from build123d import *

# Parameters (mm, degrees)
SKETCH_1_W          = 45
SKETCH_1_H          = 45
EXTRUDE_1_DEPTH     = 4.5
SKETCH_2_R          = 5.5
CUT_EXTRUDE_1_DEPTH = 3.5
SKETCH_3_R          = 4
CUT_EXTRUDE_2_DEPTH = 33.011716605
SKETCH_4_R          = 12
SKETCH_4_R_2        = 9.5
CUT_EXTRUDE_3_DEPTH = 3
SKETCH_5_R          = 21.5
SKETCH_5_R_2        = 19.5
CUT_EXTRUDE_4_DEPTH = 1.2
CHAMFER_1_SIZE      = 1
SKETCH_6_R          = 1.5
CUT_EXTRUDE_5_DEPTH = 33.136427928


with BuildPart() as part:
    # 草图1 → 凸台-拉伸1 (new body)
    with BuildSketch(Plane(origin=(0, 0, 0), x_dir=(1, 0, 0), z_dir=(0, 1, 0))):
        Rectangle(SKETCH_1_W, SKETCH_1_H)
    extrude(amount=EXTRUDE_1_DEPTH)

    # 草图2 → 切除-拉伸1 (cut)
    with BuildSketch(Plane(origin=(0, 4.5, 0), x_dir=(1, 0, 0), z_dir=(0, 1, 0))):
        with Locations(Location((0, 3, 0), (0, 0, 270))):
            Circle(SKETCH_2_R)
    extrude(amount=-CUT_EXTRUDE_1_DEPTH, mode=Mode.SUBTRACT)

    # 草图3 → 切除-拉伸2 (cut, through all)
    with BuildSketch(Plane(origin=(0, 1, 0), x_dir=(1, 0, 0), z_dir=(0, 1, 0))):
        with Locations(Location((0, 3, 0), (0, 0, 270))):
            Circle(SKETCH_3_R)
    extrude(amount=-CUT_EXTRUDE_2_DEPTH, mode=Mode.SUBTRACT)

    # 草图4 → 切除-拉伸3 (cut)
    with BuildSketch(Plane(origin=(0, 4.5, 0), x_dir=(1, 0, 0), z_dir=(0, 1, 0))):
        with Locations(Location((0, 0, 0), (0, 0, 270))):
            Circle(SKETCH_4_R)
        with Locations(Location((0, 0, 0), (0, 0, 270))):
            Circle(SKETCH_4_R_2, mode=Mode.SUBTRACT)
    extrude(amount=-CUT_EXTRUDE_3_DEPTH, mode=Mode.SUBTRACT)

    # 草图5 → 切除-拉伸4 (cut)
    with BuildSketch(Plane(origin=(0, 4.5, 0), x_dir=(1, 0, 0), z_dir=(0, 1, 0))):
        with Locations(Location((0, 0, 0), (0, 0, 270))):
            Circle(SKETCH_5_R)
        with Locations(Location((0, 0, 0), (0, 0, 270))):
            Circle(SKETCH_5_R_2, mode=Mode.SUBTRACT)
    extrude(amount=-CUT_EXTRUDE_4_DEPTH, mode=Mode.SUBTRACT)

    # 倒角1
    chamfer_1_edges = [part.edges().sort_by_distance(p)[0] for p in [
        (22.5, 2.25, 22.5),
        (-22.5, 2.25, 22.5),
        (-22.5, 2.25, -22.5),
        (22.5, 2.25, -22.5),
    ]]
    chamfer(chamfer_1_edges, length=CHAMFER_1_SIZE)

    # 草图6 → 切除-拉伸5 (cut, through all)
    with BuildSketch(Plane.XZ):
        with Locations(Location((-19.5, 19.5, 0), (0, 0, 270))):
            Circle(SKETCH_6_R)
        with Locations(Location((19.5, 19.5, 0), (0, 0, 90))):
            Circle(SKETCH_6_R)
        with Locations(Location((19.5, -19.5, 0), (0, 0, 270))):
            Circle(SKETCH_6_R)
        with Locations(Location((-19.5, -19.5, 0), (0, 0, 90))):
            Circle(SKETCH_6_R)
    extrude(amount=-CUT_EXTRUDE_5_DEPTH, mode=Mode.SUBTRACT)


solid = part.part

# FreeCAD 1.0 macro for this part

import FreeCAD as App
import Part
import Sketcher
from FreeCAD import Vector
Q = App.Units.Quantity


def edges_at(feature, points):
    """Names of the edges that pass closest to the given points."""
    edges = feature.Shape.Edges
    near = lambda p: min(range(len(edges)), key=lambda i: edges[i].distToShape(Part.Vertex(*p))[0])
    return sorted({f"Edge{near(p) + 1}" for p in points})


def add_polygon(sketch, points):
    """Adds a closed chain of lines whose ends are joined by coincident constraints."""
    first, n = sketch.GeometryCount, len(points)
    for a, b in zip(points, points[1:] + points[:1]):
        sketch.addGeometry(Part.LineSegment(App.Vector(*a, 0), App.Vector(*b, 0)), False)
    for i in range(n):
        sketch.addConstraint(Sketcher.Constraint("Coincident", first + i, 2, first + (i + 1) % n, 1))

doc = App.newDocument("Part")
body = doc.addObject("PartDesign::Body", "Body")

# Sketch on XZ plane
sketch1 = body.newObject("Sketcher::SketchObject", "Sketch")
sketch1.AttachmentSupport = (doc.getObject("XZ_Plane"), [""])
sketch1.MapMode = "FlatFace"
add_polygon(sketch1, [(-22.5, -22.5), (-22.5, 22.5), (22.5, 22.5), (22.5, -22.5)])  # lines 0-3
sketch1.addConstraint([
    Sketcher.Constraint("Vertical", 0),
    Sketcher.Constraint("Horizontal", 1),
    Sketcher.Constraint("Vertical", 2),
    Sketcher.Constraint("Horizontal", 3),
    Sketcher.Constraint("Symmetric", 0, 2, 2, 2, -1, 1),
    Sketcher.Constraint("Equal", 3, 0),
    Sketcher.Constraint("DistanceX", 1, 1, 1, 2, Q("45 mm")),
])
pad1 = body.newObject("PartDesign::Pad", "Pad")
pad1.Profile = sketch1
pad1.Length = 4.5
pad1.Reversed = True

# Sketch on XZ plane
sketch2 = body.newObject("Sketcher::SketchObject", "Sketch001")
sketch2.AttachmentSupport = (doc.getObject("XZ_Plane"), [""])
sketch2.MapMode = "FlatFace"
sketch2.AttachmentOffset = App.Placement(Vector(0, 0, -4.5), App.Rotation())
sketch2.addGeometry(Part.Circle(Vector(0, -3, 0), Vector(0, 0, 1), 5.5), False)
sketch2.addConstraint([
    Sketcher.Constraint("PointOnObject", 0, 3, -2),
    Sketcher.Constraint("Diameter", 0, Q("11 mm")),
    Sketcher.Constraint("DistanceY", 0, 3, -1, 1, Q("3 mm")),
])
pocket1 = body.newObject("PartDesign::Pocket", "Pocket")
pocket1.Profile = sketch2
pocket1.Length = 3.5
pocket1.Reversed = True

# Sketch on XZ plane
sketch3 = body.newObject("Sketcher::SketchObject", "Sketch002")
sketch3.AttachmentSupport = (doc.getObject("XZ_Plane"), [""])
sketch3.MapMode = "FlatFace"
sketch3.AttachmentOffset = App.Placement(Vector(0, 0, -1), App.Rotation())
sketch3.addGeometry(Part.Circle(Vector(0, -3, 0), Vector(0, 0, 1), 4), False)
sketch3.addConstraint([
    Sketcher.Constraint("PointOnObject", 0, 3, -2),
    Sketcher.Constraint("Diameter", 0, Q("8 mm")),
    Sketcher.Constraint("DistanceY", 0, 3, -1, 1, Q("3 mm")),
])
pocket2 = body.newObject("PartDesign::Pocket", "Pocket001")
pocket2.Profile = sketch3
pocket2.Type = "ThroughAll"
pocket2.Reversed = True

# Sketch on XZ plane
sketch4 = body.newObject("Sketcher::SketchObject", "Sketch003")
sketch4.AttachmentSupport = (doc.getObject("XZ_Plane"), [""])
sketch4.MapMode = "FlatFace"
sketch4.AttachmentOffset = App.Placement(Vector(0, 0, -4.5), App.Rotation())
sketch4.addGeometry([
    Part.Circle(Vector(0, 0, 0), Vector(0, 0, 1), 12),
    Part.Circle(Vector(0, 0, 0), Vector(0, 0, 1), 9.5),
], False)
sketch4.addConstraint([
    Sketcher.Constraint("Coincident", 0, 3, -1, 1),
    Sketcher.Constraint("Coincident", 1, 3, -1, 1),
    Sketcher.Constraint("Diameter", 0, Q("24 mm")),
    Sketcher.Constraint("Diameter", 1, Q("19 mm")),
])
pocket3 = body.newObject("PartDesign::Pocket", "Pocket002")
pocket3.Profile = sketch4
pocket3.Length = 3
pocket3.Reversed = True

# Sketch on XZ plane
sketch5 = body.newObject("Sketcher::SketchObject", "Sketch004")
sketch5.AttachmentSupport = (doc.getObject("XZ_Plane"), [""])
sketch5.MapMode = "FlatFace"
sketch5.AttachmentOffset = App.Placement(Vector(0, 0, -4.5), App.Rotation())
sketch5.addGeometry([
    Part.Circle(Vector(0, 0, 0), Vector(0, 0, 1), 21.5),
    Part.Circle(Vector(0, 0, 0), Vector(0, 0, 1), 19.5),
], False)
sketch5.addConstraint([
    Sketcher.Constraint("Coincident", 0, 3, -1, 1),
    Sketcher.Constraint("Coincident", 1, 3, -1, 1),
    Sketcher.Constraint("Diameter", 0, Q("43 mm")),
    Sketcher.Constraint("Diameter", 1, Q("39 mm")),
])
pocket4 = body.newObject("PartDesign::Pocket", "Pocket003")
pocket4.Profile = sketch5
pocket4.Length = 1.2
pocket4.Reversed = True
doc.recompute()

chamfer = body.newObject("PartDesign::Chamfer", "Chamfer")
chamfer.Base = (pocket4, edges_at(pocket4, [
    (22.5, 2.25, 22.5),
    (-22.5, 2.25, 22.5),
    (-22.5, 2.25, -22.5),
    (22.5, 2.25, -22.5),
]))
chamfer.Size = 1

# Sketch on XZ plane
sketch6 = body.newObject("Sketcher::SketchObject", "Sketch005")
sketch6.AttachmentSupport = (doc.getObject("XZ_Plane"), [""])
sketch6.MapMode = "FlatFace"
sketch6.addGeometry([
    Part.Circle(Vector(-19.5, 19.5, 0), Vector(0, 0, 1), 1.5),
    Part.Circle(Vector(19.5, 19.5, 0), Vector(0, 0, 1), 1.5),
    Part.Circle(Vector(19.5, -19.5, 0), Vector(0, 0, 1), 1.5),
    Part.Circle(Vector(-19.5, -19.5, 0), Vector(0, 0, 1), 1.5),
], False)
sketch6.addConstraint([
    Sketcher.Constraint("Equal", 0, 1),
    Sketcher.Constraint("Equal", 1, 2),
    Sketcher.Constraint("Equal", 2, 3),
    Sketcher.Constraint("Symmetric", 0, 3, 2, 3, -1, 1),
    Sketcher.Constraint("Symmetric", 1, 3, 3, 3, -1, 1),
    Sketcher.Constraint("Symmetric", 0, 3, 1, 3, -2),
    Sketcher.Constraint("Diameter", 0, Q("3 mm")),
    Sketcher.Constraint("DistanceX", 0, 3, 1, 3, Q("39 mm")),
    Sketcher.Constraint("DistanceY", 2, 3, 1, 3, Q("39 mm")),
])
pocket5 = body.newObject("PartDesign::Pocket", "Pocket004")
pocket5.Profile = sketch6
pocket5.Type = "ThroughAll"

doc.recompute()
